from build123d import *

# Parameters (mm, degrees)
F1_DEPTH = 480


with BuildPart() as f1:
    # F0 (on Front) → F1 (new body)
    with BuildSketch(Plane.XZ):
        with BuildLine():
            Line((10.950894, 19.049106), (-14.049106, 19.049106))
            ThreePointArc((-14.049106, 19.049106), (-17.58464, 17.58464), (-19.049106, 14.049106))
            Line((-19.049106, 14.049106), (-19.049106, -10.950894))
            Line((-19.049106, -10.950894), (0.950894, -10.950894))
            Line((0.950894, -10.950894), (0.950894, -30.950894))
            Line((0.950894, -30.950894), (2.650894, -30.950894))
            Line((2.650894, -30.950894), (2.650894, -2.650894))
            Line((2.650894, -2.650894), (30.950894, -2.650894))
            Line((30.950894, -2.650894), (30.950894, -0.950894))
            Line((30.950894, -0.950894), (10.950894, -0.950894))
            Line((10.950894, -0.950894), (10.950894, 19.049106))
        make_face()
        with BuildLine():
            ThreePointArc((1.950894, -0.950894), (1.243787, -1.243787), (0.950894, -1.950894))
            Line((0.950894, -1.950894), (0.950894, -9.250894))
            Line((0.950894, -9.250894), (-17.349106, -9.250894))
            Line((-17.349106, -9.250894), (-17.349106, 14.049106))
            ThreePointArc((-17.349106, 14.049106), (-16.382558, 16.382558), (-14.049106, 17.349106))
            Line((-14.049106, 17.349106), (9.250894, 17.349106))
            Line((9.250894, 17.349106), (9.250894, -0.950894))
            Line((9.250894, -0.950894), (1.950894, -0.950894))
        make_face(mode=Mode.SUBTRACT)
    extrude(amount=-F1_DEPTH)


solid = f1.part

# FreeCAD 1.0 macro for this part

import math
import FreeCAD as App
import Part
import Sketcher
from FreeCAD import Vector

doc = App.newDocument("Part")
body = doc.addObject("PartDesign::Body", "Body")

# Sketch on XZ plane
sketch1 = body.newObject("Sketcher::SketchObject", "Sketch")
sketch1.AttachmentSupport = (doc.getObject("XZ_Plane"), [""])
sketch1.MapMode = "FlatFace"
sketch1.addGeometry([
    Part.LineSegment(Vector(10.950894, 19.049106, 0), Vector(-14.049106, 19.049106, 0)),  # 0
    Part.ArcOfCircle(Part.Circle(Vector(-14.049106, 14.049106, 0), Vector(0, 0, 1), 5), math.radians(89.999996), math.radians(180.000004)),  # 1
    Part.LineSegment(Vector(-19.049106, 14.049106, 0), Vector(-19.049106, -10.950894, 0)),  # 2
    Part.LineSegment(Vector(-19.049106, -10.950894, 0), Vector(0.950894, -10.950894, 0)),  # 3
    Part.LineSegment(Vector(0.950894, -10.950894, 0), Vector(0.950894, -30.950894, 0)),  # 4
    Part.LineSegment(Vector(0.950894, -30.950894, 0), Vector(2.650894, -30.950894, 0)),  # 5
    Part.LineSegment(Vector(2.650894, -30.950894, 0), Vector(2.650894, -2.650894, 0)),  # 6
    Part.LineSegment(Vector(2.650894, -2.650894, 0), Vector(30.950894, -2.650894, 0)),  # 7
    Part.LineSegment(Vector(30.950894, -2.650894, 0), Vector(30.950894, -0.950894, 0)),  # 8
    Part.LineSegment(Vector(30.950894, -0.950894, 0), Vector(10.950894, -0.950894, 0)),  # 9
    Part.LineSegment(Vector(10.950894, -0.950894, 0), Vector(10.950894, 19.049106, 0)),  # 10
    Part.LineSegment(Vector(9.250894, -0.950894, 0), Vector(1.950894, -0.950894, 0)),  # 11
    Part.ArcOfCircle(Part.Circle(Vector(1.950893, -1.950893, 0), Vector(0, 0, 1), 0.999999), math.radians(89.999957), math.radians(180.000043)),  # 12
    Part.LineSegment(Vector(0.950894, -1.950894, 0), Vector(0.950894, -9.250894, 0)),  # 13
    Part.LineSegment(Vector(0.950894, -9.250894, 0), Vector(-17.349106, -9.250894, 0)),  # 14
    Part.LineSegment(Vector(-17.349106, -9.250894, 0), Vector(-17.349106, 14.049106, 0)),  # 15
    Part.ArcOfCircle(Part.Circle(Vector(-14.049105, 14.049105, 0), Vector(0, 0, 1), 3.300001), math.radians(90.000022), math.radians(179.999978)),  # 16
    Part.LineSegment(Vector(-14.049106, 17.349106, 0), Vector(9.250894, 17.349106, 0)),  # 17
    Part.LineSegment(Vector(9.250894, 17.349106, 0), Vector(9.250894, -0.950894, 0)),  # 18
], False)
sketch1.addConstraint([
    Sketcher.Constraint("Tangent", 0, 2, 1, 1),
    Sketcher.Constraint("Tangent", 1, 2, 2, 1),
    Sketcher.Constraint("Coincident", 2, 2, 3, 1),
    Sketcher.Constraint("Coincident", 3, 2, 4, 1),
    Sketcher.Constraint("Coincident", 4, 2, 5, 1),
    Sketcher.Constraint("Coincident", 5, 2, 6, 1),
    Sketcher.Constraint("Coincident", 6, 2, 7, 1),
    Sketcher.Constraint("Coincident", 7, 2, 8, 1),
    Sketcher.Constraint("Coincident", 8, 2, 9, 1),
    Sketcher.Constraint("Coincident", 9, 2, 10, 1),
    Sketcher.Constraint("Coincident", 10, 2, 0, 1),
    Sketcher.Constraint("Tangent", 11, 2, 12, 1),
    Sketcher.Constraint("Tangent", 12, 2, 13, 1),
    Sketcher.Constraint("Coincident", 13, 2, 14, 1),
    Sketcher.Constraint("Coincident", 14, 2, 15, 1),
    Sketcher.Constraint("Tangent", 15, 2, 16, 2),
    Sketcher.Constraint("Tangent", 16, 1, 17, 1),
    Sketcher.Constraint("Coincident", 17, 2, 18, 1),
    Sketcher.Constraint("Coincident", 18, 2, 11, 1),
    Sketcher.Constraint("Horizontal", 0),
    Sketcher.Constraint("Vertical", 2),
    Sketcher.Constraint("Horizontal", 3),
    Sketcher.Constraint("Vertical", 4),
    Sketcher.Constraint("Horizontal", 5),
    Sketcher.Constraint("Vertical", 6),
    Sketcher.Constraint("Horizontal", 7),
    Sketcher.Constraint("Vertical", 8),
    Sketcher.Constraint("Horizontal", 9),
    Sketcher.Constraint("Vertical", 10),
    Sketcher.Constraint("Horizontal", 11),
    Sketcher.Constraint("Vertical", 13),
    Sketcher.Constraint("Horizontal", 14),
    Sketcher.Constraint("Vertical", 15),
    Sketcher.Constraint("Horizontal", 17),
    Sketcher.Constraint("Vertical", 18),
    Sketcher.Constraint("Coincident", 16, 3, 1, 3),
    Sketcher.Constraint("Horizontal", 9, 2, 11, 2),
    Sketcher.Constraint("Vertical", 4, 2, 12, 2),
    Sketcher.Constraint("Equal", 3, 9),
    Sketcher.Constraint("Equal", 0, 2),
    Sketcher.Constraint("Equal", 9, 4),
    Sketcher.Constraint("Equal", 7, 6),
    Sketcher.Constraint("Equal", 5, 8),
    Sketcher.Constraint("Equal", 11, 13),
    Sketcher.Constraint("Radius", 1, 5.0),
    Sketcher.Constraint("Radius", 12, 0.999999),
    Sketcher.Constraint("Radius", 16, 3.300001),
    Sketcher.Constraint("DistanceX", 0, 2, 0, 1, 25.0),
    Sketcher.Constraint("DistanceX", 3, 1, 3, 2, 20.0),
    Sketcher.Constraint("DistanceX", 5, 1, 5, 2, 1.7),
    Sketcher.Constraint("DistanceX", 11, 2, 11, 1, 7.3),
    Sketcher.Constraint("DistanceX", 1, 3, -1, 1, 14.049106),
    Sketcher.Constraint("DistanceY", -1, 1, 1, 3, 14.049106),
])
pad1 = body.newObject("PartDesign::Pad", "Pad")
pad1.Profile = sketch1
pad1.Length = 480
pad1.Reversed = True

doc.recompute()
